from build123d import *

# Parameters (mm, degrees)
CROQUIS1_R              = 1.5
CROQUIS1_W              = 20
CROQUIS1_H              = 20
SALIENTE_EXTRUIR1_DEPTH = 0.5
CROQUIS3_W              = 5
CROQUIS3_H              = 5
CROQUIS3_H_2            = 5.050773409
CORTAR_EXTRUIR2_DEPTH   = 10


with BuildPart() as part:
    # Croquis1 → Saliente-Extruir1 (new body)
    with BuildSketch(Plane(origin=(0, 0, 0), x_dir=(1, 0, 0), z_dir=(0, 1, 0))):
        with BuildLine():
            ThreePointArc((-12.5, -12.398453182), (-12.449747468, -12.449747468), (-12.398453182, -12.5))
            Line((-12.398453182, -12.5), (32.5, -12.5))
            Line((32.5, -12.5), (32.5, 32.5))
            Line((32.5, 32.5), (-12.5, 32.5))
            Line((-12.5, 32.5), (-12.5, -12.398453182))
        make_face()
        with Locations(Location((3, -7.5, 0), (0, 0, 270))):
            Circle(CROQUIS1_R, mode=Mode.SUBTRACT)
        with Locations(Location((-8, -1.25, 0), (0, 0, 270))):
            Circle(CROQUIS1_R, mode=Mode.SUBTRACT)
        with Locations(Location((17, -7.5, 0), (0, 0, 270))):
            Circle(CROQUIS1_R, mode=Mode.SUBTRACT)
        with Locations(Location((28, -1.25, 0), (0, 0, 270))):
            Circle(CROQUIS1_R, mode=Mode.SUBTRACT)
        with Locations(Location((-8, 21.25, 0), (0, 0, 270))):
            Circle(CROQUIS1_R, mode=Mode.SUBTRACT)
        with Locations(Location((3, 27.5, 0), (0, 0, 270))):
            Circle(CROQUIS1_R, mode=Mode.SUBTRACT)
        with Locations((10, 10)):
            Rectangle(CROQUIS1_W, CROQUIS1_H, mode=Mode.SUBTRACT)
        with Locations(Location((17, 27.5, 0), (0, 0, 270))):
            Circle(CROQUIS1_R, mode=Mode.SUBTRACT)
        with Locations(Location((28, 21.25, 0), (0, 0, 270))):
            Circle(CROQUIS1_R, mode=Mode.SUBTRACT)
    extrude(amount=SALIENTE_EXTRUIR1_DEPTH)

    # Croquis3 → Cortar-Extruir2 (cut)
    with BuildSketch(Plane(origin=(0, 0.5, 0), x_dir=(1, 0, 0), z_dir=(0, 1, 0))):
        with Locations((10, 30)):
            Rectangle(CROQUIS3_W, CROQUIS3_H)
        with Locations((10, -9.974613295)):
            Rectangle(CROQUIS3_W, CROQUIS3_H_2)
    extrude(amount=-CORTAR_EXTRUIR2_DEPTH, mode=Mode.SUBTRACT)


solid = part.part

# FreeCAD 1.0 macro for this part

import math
import FreeCAD as App
import Part
import Sketcher
from FreeCAD import Vector

doc = App.newDocument("Part")
body = doc.addObject("PartDesign::Body", "Body")

# Sketch on XZ plane
sketch1 = doc.addObject("Sketcher::SketchObject", "Sketch")
body.addObject(sketch1)
sketch1.AttachmentSupport = (doc.XZ_Plane, [""])
sketch1.MapMode = "FlatFace"
sketch1.addGeometry([
    Part.ArcOfCircle(Part.Circle(Vector(-9.974873, 9.974873, 0), Vector(0, 0, 1), 3.500001), math.radians(133.824463), math.radians(136.175537)),  # 0
    Part.LineSegment(Vector(-12.398453, 12.5, 0), Vector(32.5, 12.5, 0)),  # 1
    Part.LineSegment(Vector(32.5, 12.5, 0), Vector(32.5, -32.5, 0)),  # 2
    Part.LineSegment(Vector(32.5, -32.5, 0), Vector(-12.5, -32.5, 0)),  # 3
    Part.LineSegment(Vector(-12.5, -32.5, 0), Vector(-12.5, 12.398453, 0)),  # 4
    Part.Circle(Vector(-8, 1.25, 0), Vector(0, 0, 1), 1.5),  # 5
    Part.Circle(Vector(3, 7.5, 0), Vector(0, 0, 1), 1.5),  # 6
    Part.Circle(Vector(17, 7.5, 0), Vector(0, 0, 1), 1.5),  # 7
    Part.Circle(Vector(28, 1.25, 0), Vector(0, 0, 1), 1.5),  # 8
    Part.Circle(Vector(-8, -21.25, 0), Vector(0, 0, 1), 1.5),  # 9
    Part.Circle(Vector(3, -27.5, 0), Vector(0, 0, 1), 1.5),  # 10
    Part.LineSegment(Vector(20, 0, 0), Vector(0, 0, 0)),  # 11
    Part.LineSegment(Vector(0, 0, 0), Vector(0, -20, 0)),  # 12
    Part.LineSegment(Vector(0, -20, 0), Vector(20, -20, 0)),  # 13
    Part.LineSegment(Vector(20, -20, 0), Vector(20, 0, 0)),  # 14
    Part.Circle(Vector(17, -27.5, 0), Vector(0, 0, 1), 1.5),  # 15
    Part.Circle(Vector(28, -21.25, 0), Vector(0, 0, 1), 1.5),  # 16
], False)
sketch1.addConstraint([
    Sketcher.Constraint("Coincident", 0, 1, 1, 1),
    Sketcher.Constraint("Coincident", 1, 2, 2, 1),
    Sketcher.Constraint("Coincident", 2, 2, 3, 1),
    Sketcher.Constraint("Coincident", 3, 2, 4, 1),
    Sketcher.Constraint("Coincident", 4, 2, 0, 2),
    Sketcher.Constraint("Coincident", 11, 2, 12, 1),
    Sketcher.Constraint("Coincident", 12, 2, 13, 1),
    Sketcher.Constraint("Coincident", 13, 2, 14, 1),
    Sketcher.Constraint("Coincident", 14, 2, 11, 1),
    Sketcher.Constraint("Horizontal", 1),
    Sketcher.Constraint("Vertical", 2),
    Sketcher.Constraint("Horizontal", 3),
    Sketcher.Constraint("Vertical", 4),
    Sketcher.Constraint("Horizontal", 11),
    Sketcher.Constraint("Vertical", 12),
    Sketcher.Constraint("Horizontal", 13),
    Sketcher.Constraint("Vertical", 14),
    Sketcher.Constraint("Coincident", 11, 2, -1, 1),
    Sketcher.Constraint("Equal", 5, 6),
    Sketcher.Constraint("Equal", 6, 7),
    Sketcher.Constraint("Equal", 7, 8),
    Sketcher.Constraint("Equal", 8, 9),
    Sketcher.Constraint("Equal", 9, 10),
    Sketcher.Constraint("Equal", 10, 15),
    Sketcher.Constraint("Equal", 15, 16),
    Sketcher.Constraint("Horizontal", 6, 3, 7, 3),
    Sketcher.Constraint("Horizontal", 5, 3, 8, 3),
    Sketcher.Constraint("Horizontal", 10, 3, 15, 3),
    Sketcher.Constraint("Horizontal", 9, 3, 16, 3),
    Sketcher.Constraint("Vertical", 5, 3, 9, 3),
    Sketcher.Constraint("Vertical", 6, 3, 10, 3),
    Sketcher.Constraint("Vertical", 7, 3, 15, 3),
    Sketcher.Constraint("Vertical", 8, 3, 16, 3),
    Sketcher.Constraint("Equal", 3, 2),
    Sketcher.Constraint("Equal", 1, 4),
    Sketcher.Constraint("Equal", 13, 12),
    Sketcher.Constraint("Diameter", 5, 3.0),
    Sketcher.Constraint("Radius", 0, 3.500001),
    Sketcher.Constraint("DistanceX", 3, 2, 3, 1, 45.0),
    Sketcher.Constraint("DistanceX", 11, 2, 11, 1, 20.0),
    Sketcher.Constraint("DistanceX", 5, 3, -1, 1, 8.0),
    Sketcher.Constraint("DistanceX", -1, 1, 6, 3, 3.0),
    Sketcher.Constraint("DistanceX", -1, 1, 7, 3, 17.0),
    Sketcher.Constraint("DistanceX", -1, 1, 8, 3, 28.0),
    Sketcher.Constraint("DistanceY", 10, 3, 6, 3, 35.0),
    Sketcher.Constraint("DistanceY", 6, 3, 0, 1, 5.0),
    Sketcher.Constraint("DistanceY", -1, 1, 6, 3, 7.5),
    Sketcher.Constraint("DistanceX", -1, 1, 1, 2, 32.5),
    Sketcher.Constraint("DistanceY", 9, 3, 5, 3, 22.5),
    Sketcher.Constraint("DistanceY", -1, 1, 5, 3, 1.25),
    Sketcher.Constraint("DistanceX", 1, 1, 1, 2, 44.898453),
])
pad1 = doc.addObject("PartDesign::Pad", "Pad")
body.addObject(pad1)
pad1.Profile = sketch1
pad1.Length = 0.5
pad1.Reversed = True

# Sketch on XZ plane
sketch2 = doc.addObject("Sketcher::SketchObject", "Sketch001")
body.addObject(sketch2)
sketch2.AttachmentSupport = (doc.XZ_Plane, [""])
sketch2.MapMode = "FlatFace"
sketch2.AttachmentOffset = App.Placement(Vector(0, 0, -0.5), App.Rotation())
sketch2.addGeometry([
    Part.LineSegment(Vector(7.5, -32.5, 0), Vector(7.5, -27.5, 0)),  # 0
    Part.LineSegment(Vector(7.5, -27.5, 0), Vector(12.5, -27.5, 0)),  # 1
    Part.LineSegment(Vector(12.5, -27.5, 0), Vector(12.5, -32.5, 0)),  # 2
    Part.LineSegment(Vector(12.5, -32.5, 0), Vector(7.5, -32.5, 0)),  # 3
    Part.LineSegment(Vector(7.5, 7.449227, 0), Vector(7.5, 12.5, 0)),  # 4
    Part.LineSegment(Vector(7.5, 12.5, 0), Vector(12.5, 12.5, 0)),  # 5
    Part.LineSegment(Vector(12.5, 12.5, 0), Vector(12.5, 7.449227, 0)),  # 6
    Part.LineSegment(Vector(12.5, 7.449227, 0), Vector(7.5, 7.449227, 0)),  # 7
], False)
sketch2.addConstraint([
    Sketcher.Constraint("Coincident", 0, 2, 1, 1),
    Sketcher.Constraint("Coincident", 1, 2, 2, 1),
    Sketcher.Constraint("Coincident", 2, 2, 3, 1),
    Sketcher.Constraint("Coincident", 3, 2, 0, 1),
    Sketcher.Constraint("Coincident", 4, 2, 5, 1),
    Sketcher.Constraint("Coincident", 5, 2, 6, 1),
    Sketcher.Constraint("Coincident", 6, 2, 7, 1),
    Sketcher.Constraint("Coincident", 7, 2, 4, 1),
    Sketcher.Constraint("Vertical", 0),
    Sketcher.Constraint("Horizontal", 1),
    Sketcher.Constraint("Vertical", 2),
    Sketcher.Constraint("Horizontal", 3),
    Sketcher.Constraint("Vertical", 4),
    Sketcher.Constraint("Horizontal", 5),
    Sketcher.Constraint("Vertical", 6),
    Sketcher.Constraint("Horizontal", 7),
    Sketcher.Constraint("Vertical", 3, 2, 4, 2),
    Sketcher.Constraint("Vertical", 2, 2, 5, 2),
    Sketcher.Constraint("Equal", 7, 0),
    Sketcher.Constraint("DistanceX", 1, 1, 1, 2, 5.0),
    Sketcher.Constraint("DistanceY", 0, 2, 4, 2, 40.0),
    Sketcher.Constraint("DistanceX", -1, 1, 0, 2, 7.5),
    Sketcher.Constraint("DistanceY", 0, 2, -1, 1, 27.5),
    Sketcher.Constraint("DistanceY", 4, 1, 4, 2, 5.050773),
])
pocket1 = doc.addObject("PartDesign::Pocket", "Pocket")
body.addObject(pocket1)
pocket1.Profile = sketch2
pocket1.Length = 10
pocket1.Reversed = True

doc.recompute()
